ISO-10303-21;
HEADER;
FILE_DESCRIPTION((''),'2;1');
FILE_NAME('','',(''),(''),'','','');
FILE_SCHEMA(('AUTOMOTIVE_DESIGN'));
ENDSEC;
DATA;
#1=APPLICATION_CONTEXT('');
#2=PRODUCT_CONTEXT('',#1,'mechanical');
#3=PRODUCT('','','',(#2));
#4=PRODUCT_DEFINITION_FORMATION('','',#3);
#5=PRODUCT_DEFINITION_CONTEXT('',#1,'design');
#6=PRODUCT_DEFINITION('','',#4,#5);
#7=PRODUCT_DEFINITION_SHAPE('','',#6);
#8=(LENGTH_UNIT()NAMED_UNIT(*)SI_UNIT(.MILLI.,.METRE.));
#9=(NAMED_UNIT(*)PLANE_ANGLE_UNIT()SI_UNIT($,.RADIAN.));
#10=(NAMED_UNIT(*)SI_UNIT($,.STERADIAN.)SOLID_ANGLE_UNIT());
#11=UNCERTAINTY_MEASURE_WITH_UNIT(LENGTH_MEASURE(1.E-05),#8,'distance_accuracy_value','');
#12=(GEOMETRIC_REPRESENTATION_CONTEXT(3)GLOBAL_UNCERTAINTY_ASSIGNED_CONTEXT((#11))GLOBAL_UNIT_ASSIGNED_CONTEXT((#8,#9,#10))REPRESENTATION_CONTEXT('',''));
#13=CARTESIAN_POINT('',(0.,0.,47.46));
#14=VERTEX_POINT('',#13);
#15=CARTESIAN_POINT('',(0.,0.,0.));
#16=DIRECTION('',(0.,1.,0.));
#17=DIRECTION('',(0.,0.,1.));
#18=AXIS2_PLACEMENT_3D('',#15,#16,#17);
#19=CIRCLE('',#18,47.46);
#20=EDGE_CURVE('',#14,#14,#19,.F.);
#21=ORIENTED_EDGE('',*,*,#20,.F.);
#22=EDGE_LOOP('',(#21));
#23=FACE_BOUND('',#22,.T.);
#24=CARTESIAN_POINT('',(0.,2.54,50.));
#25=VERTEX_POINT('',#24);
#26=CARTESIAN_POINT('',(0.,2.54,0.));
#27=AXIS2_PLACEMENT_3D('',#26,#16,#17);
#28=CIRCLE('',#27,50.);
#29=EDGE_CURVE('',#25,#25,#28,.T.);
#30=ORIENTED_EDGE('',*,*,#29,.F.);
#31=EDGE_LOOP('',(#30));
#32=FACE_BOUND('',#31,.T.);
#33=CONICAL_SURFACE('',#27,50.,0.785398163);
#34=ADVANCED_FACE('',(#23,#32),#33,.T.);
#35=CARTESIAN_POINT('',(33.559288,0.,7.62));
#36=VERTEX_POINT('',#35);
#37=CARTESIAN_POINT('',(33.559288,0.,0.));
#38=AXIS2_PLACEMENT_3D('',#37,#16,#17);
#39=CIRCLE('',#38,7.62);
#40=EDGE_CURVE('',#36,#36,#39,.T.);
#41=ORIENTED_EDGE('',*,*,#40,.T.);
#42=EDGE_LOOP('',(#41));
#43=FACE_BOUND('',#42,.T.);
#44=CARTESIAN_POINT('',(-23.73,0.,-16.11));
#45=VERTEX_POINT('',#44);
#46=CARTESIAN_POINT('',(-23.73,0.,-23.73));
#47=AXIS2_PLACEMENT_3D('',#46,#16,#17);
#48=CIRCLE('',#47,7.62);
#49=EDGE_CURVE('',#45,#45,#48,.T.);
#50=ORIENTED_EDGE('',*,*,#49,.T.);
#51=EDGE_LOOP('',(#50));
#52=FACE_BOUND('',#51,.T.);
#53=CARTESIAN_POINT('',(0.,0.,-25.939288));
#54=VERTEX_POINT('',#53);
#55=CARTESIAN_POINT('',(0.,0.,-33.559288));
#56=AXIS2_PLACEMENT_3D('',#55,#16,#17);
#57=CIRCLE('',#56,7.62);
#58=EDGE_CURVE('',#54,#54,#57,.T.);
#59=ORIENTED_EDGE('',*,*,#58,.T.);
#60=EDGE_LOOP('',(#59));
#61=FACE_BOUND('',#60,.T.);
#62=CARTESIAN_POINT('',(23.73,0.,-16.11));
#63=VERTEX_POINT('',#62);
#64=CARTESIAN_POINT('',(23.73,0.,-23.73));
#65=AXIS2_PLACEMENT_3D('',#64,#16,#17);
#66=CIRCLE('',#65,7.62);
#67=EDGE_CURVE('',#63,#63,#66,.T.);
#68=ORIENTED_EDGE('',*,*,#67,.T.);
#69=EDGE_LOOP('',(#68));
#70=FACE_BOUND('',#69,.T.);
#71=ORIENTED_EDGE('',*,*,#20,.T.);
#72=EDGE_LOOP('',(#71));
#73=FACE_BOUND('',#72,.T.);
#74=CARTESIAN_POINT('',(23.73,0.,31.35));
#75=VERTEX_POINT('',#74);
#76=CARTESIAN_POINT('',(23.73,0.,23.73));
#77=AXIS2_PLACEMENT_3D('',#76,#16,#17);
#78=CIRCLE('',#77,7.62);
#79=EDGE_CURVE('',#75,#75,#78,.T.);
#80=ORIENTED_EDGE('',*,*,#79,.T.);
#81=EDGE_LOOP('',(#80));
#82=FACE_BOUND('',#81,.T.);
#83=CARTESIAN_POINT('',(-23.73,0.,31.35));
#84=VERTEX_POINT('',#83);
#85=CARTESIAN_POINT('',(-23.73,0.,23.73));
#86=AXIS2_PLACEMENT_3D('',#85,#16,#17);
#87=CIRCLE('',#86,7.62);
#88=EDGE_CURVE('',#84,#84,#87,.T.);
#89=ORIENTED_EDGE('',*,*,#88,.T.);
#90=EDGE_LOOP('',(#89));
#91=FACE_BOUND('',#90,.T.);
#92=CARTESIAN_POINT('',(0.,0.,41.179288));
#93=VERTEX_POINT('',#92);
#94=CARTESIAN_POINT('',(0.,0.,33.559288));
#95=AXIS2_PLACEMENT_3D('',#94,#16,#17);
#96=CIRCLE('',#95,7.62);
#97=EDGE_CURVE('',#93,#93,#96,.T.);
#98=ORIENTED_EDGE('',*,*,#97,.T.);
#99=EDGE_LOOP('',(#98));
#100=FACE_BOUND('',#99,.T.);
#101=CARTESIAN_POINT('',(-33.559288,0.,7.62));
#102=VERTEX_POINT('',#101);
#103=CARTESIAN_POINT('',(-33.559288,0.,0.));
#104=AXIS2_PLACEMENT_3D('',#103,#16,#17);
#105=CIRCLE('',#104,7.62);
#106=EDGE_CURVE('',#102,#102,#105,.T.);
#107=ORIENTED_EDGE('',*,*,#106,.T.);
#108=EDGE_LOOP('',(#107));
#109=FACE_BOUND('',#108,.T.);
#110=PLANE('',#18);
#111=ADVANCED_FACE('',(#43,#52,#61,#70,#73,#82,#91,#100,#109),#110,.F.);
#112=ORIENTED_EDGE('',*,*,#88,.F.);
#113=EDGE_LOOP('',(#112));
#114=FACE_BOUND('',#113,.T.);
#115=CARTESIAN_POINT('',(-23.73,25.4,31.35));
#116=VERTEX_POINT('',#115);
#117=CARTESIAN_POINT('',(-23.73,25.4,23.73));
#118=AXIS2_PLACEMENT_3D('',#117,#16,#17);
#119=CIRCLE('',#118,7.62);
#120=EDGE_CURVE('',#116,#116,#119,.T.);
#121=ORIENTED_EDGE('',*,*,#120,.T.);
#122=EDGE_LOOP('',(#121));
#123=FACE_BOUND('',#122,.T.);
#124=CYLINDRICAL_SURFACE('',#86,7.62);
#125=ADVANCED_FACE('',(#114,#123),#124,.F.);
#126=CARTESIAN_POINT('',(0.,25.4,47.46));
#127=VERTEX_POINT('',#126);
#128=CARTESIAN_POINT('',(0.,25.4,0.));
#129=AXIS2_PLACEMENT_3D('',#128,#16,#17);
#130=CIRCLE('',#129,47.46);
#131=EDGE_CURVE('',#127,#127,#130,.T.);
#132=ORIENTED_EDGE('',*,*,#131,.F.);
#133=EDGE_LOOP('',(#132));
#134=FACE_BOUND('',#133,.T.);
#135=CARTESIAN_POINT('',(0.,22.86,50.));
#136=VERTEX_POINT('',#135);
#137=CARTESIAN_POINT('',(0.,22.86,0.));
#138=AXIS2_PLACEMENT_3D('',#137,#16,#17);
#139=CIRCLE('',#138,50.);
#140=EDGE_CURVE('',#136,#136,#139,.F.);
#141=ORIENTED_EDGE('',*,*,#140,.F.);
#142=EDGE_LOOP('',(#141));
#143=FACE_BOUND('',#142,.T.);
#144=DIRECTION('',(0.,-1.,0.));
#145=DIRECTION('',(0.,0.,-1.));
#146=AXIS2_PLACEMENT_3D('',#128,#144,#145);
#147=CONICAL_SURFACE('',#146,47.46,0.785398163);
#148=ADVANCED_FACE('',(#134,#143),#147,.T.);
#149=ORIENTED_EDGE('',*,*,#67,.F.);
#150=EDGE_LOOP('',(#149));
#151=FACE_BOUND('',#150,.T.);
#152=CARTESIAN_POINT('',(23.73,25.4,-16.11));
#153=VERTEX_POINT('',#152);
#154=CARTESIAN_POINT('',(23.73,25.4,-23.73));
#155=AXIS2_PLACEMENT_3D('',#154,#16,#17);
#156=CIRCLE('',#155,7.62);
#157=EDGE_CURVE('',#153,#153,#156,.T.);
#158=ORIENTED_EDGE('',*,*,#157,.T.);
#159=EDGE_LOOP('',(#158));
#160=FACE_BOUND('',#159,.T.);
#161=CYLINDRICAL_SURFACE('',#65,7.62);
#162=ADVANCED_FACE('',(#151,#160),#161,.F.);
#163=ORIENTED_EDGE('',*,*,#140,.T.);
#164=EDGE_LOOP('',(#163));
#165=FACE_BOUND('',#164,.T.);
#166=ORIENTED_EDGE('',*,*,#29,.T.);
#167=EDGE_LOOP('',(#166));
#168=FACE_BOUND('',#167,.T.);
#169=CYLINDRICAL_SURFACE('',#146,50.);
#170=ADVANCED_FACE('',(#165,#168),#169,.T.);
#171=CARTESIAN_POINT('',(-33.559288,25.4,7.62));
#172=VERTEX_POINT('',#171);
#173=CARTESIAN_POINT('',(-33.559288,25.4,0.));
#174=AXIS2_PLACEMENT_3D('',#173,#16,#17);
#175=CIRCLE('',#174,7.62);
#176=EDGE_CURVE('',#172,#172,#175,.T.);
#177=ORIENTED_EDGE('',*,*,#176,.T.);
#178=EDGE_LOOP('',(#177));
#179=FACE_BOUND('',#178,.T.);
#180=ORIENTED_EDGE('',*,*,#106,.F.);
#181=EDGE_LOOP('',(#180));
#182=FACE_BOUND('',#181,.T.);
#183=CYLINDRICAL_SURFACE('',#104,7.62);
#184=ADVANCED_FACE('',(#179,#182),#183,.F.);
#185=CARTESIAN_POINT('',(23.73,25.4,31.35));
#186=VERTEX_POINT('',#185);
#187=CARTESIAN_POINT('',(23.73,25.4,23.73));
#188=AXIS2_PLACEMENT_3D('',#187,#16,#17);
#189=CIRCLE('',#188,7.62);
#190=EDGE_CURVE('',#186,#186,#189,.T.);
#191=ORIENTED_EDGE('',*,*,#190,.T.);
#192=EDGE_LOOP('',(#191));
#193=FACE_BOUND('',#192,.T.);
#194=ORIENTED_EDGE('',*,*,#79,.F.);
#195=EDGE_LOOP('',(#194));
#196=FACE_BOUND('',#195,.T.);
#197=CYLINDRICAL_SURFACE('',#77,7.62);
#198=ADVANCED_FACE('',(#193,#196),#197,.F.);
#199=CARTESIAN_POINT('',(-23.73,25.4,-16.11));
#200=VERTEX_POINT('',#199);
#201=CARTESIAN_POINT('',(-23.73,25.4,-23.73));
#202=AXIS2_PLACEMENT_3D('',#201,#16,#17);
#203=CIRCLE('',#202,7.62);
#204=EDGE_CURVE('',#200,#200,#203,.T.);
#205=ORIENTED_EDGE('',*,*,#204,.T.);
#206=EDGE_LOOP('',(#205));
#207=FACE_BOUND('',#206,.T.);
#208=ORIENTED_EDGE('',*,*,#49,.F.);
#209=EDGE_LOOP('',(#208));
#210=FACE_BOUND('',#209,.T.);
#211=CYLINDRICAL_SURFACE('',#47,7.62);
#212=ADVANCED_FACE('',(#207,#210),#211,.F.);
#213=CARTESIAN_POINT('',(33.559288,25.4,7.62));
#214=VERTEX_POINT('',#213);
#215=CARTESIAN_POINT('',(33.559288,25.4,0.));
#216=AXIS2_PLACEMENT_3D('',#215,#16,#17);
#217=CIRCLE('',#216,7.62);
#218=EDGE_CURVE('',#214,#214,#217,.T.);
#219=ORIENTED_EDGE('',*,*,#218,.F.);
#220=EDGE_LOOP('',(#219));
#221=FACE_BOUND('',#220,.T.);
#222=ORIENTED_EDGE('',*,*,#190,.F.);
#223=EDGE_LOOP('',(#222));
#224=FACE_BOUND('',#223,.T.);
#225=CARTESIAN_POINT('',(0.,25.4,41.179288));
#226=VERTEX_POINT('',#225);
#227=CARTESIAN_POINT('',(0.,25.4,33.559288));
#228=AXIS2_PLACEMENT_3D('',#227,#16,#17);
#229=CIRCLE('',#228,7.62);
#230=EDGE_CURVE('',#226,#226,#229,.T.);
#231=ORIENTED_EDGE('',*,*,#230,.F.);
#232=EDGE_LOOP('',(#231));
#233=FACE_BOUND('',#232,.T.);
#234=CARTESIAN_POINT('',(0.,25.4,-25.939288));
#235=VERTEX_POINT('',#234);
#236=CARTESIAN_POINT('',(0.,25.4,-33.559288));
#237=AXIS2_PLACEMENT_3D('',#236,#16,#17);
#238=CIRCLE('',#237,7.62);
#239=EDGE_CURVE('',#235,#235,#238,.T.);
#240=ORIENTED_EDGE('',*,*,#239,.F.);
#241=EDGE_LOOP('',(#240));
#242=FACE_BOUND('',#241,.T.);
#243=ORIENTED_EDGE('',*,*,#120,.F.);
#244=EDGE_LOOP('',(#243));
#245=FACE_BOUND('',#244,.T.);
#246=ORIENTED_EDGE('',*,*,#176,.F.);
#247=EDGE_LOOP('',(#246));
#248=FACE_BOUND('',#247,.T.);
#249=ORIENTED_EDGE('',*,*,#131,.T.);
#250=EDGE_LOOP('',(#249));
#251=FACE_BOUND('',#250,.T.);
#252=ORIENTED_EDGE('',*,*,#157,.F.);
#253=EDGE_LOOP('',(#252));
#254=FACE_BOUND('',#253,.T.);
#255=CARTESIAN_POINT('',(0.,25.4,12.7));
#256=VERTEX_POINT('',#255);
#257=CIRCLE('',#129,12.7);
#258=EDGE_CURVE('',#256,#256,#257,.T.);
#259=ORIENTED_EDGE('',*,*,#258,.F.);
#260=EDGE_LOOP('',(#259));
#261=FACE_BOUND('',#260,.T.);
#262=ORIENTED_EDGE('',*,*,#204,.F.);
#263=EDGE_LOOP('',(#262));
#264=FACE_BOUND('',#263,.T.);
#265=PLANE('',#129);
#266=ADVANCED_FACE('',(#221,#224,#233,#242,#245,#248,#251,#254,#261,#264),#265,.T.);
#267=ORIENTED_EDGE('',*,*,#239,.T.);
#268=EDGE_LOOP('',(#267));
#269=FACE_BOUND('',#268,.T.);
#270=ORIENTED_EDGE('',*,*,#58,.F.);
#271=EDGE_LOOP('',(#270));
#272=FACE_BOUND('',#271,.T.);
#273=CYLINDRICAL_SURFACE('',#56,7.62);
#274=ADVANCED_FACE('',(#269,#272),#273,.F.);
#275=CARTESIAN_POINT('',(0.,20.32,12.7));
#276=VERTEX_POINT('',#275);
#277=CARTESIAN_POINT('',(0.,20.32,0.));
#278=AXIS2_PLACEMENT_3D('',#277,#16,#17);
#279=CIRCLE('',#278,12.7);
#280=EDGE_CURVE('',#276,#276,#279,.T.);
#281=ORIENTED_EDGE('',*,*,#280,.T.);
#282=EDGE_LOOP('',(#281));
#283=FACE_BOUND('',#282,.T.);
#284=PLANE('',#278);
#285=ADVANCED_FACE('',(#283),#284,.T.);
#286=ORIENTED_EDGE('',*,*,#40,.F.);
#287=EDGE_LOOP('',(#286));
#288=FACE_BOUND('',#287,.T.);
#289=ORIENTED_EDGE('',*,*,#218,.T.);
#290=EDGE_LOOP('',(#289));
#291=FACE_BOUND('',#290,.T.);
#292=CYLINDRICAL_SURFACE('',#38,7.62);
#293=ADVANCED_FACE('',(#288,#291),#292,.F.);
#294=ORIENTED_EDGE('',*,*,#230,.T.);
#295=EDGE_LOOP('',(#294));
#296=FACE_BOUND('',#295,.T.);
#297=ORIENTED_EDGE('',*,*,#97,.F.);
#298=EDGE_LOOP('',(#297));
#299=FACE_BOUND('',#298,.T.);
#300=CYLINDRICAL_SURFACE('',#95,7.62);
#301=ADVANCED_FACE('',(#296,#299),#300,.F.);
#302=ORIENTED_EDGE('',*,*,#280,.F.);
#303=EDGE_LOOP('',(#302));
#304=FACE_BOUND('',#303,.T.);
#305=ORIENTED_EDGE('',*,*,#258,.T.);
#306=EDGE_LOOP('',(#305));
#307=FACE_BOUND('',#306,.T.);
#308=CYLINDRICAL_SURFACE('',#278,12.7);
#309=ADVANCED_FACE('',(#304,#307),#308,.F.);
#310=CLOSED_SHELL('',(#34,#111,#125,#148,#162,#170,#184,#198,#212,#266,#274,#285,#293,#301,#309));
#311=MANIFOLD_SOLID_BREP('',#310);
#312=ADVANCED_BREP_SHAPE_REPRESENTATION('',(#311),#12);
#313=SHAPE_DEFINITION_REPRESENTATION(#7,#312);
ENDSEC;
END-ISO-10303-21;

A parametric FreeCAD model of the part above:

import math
import FreeCAD as App
import Part
import Sketcher

V = App.Vector
Q = App.Units.Quantity


def edges_at(feature, points):
    """Names of the edges that pass closest to the given points."""
    edges = feature.Shape.Edges
    near = lambda p: min(range(len(edges)), key=lambda i: edges[i].distToShape(Part.Vertex(*p))[0])
    return sorted({f"Edge{near(p) + 1}" for p in points})

doc = App.newDocument("Part")
body = doc.addObject("PartDesign::Body", "Body")

# Sketch on XZ plane
sketch1 = doc.addObject("Sketcher::SketchObject", "Sketch")
body.addObject(sketch1)
sketch1.AttachmentSupport = (doc.XZ_Plane, [""])
sketch1.MapMode = "FlatFace"
sketch1.addGeometry(Part.Circle(V(0, 0, 0), V(0, 0, 1), 50), False)
sketch1.addConstraint(Sketcher.Constraint("Coincident", 0, 3, -1, 1))
sketch1.addConstraint(Sketcher.Constraint("Diameter", 0, 100.0))
pad1 = doc.addObject("PartDesign::Pad", "Pad")
body.addObject(pad1)
pad1.Profile = sketch1
pad1.Length = Q("1 in")
pad1.Reversed = True

# Sketch on XZ plane
sketch2 = doc.addObject("Sketcher::SketchObject", "Sketch001")
body.addObject(sketch2)
sketch2.AttachmentSupport = (doc.XZ_Plane, [""])
sketch2.MapMode = "FlatFace"
sketch2.AttachmentOffset = App.Placement(V(0, 0, -1 * 25.4), App.Rotation())
sketch2.addGeometry(Part.Circle(V(0, 0, 0), V(0, 0, 1), 12.7), False)
sketch2.addConstraint(Sketcher.Constraint("Coincident", 0, 3, -1, 1))
sketch2.addConstraint(Sketcher.Constraint("Diameter", 0, Q("1 in")))
pocket1 = doc.addObject("PartDesign::Pocket", "Pocket")
body.addObject(pocket1)
pocket1.Profile = sketch2
pocket1.Length = Q("0.2 in")
pocket1.Reversed = True
doc.recompute()

chamfer = doc.addObject("PartDesign::Chamfer", "Chamfer")
body.addObject(chamfer)
chamfer.Base = (pocket1, edges_at(pocket1, [(0, 0, -50), (0, 25.4, -50)]))
chamfer.Size = Q("0.1 in")

# Sketch on XZ plane
sketch3 = doc.addObject("Sketcher::SketchObject", "Sketch002")
body.addObject(sketch3)
sketch3.AttachmentSupport = (doc.XZ_Plane, [""])
sketch3.MapMode = "FlatFace"
sketch3.AttachmentOffset = App.Placement(V(0, 0, -1 * 25.4), App.Rotation())
sketch3.addGeometry(Part.ArcOfCircle(Part.Circle(V(33.559288, 0, 0), V(0, 0, 1), 7.62), math.radians(90), math.radians(180)), False)
sketch3.addGeometry(Part.ArcOfCircle(Part.Circle(V(33.559288, 0, 0), V(0, 0, 1), 7.62), math.radians(0), math.radians(90)), False)
sketch3.addGeometry(Part.ArcOfCircle(Part.Circle(V(33.559288, 0, 0), V(0, 0, 1), 7.62), math.radians(-90), math.radians(0)), False)
sketch3.addGeometry(Part.ArcOfCircle(Part.Circle(V(33.559288, 0, 0), V(0, 0, 1), 7.62), math.radians(180), math.radians(270)), False)
sketch3.addGeometry(Part.ArcOfCircle(Part.Circle(V(23.73, 23.73, 0), V(0, 0, 1), 7.62), math.radians(45), math.radians(135)), False)
sketch3.addGeometry(Part.ArcOfCircle(Part.Circle(V(23.73, 23.73, 0), V(0, 0, 1), 7.62), math.radians(0), math.radians(45)), False)
sketch3.addGeometry(Part.ArcOfCircle(Part.Circle(V(23.73, 23.73, 0), V(0, 0, 1), 7.62), math.radians(-45), math.radians(0)), False)
sketch3.addGeometry(Part.ArcOfCircle(Part.Circle(V(23.73, 23.73, 0), V(0, 0, 1), 7.62), math.radians(-135), math.radians(-45)), False)
sketch3.addGeometry(Part.ArcOfCircle(Part.Circle(V(23.73, 23.73, 0), V(0, 0, 1), 7.62), math.radians(135), math.radians(225)), False)
sketch3.addGeometry(Part.ArcOfCircle(Part.Circle(V(0, 33.559288, 0), V(0, 0, 1), 7.62), math.radians(180), math.radians(270)), False)
sketch3.addGeometry(Part.ArcOfCircle(Part.Circle(V(0, 33.559288, 0), V(0, 0, 1), 7.62), math.radians(90), math.radians(180)), False)
sketch3.addGeometry(Part.ArcOfCircle(Part.Circle(V(0, 33.559288, 0), V(0, 0, 1), 7.62), math.radians(0), math.radians(90)), False)
sketch3.addGeometry(Part.ArcOfCircle(Part.Circle(V(0, 33.559288, 0), V(0, 0, 1), 7.62), math.radians(-90), math.radians(0)), False)
sketch3.addGeometry(Part.ArcOfCircle(Part.Circle(V(-23.73, 23.73, 0), V(0, 0, 1), 7.62), math.radians(-135), math.radians(-45)), False)
sketch3.addGeometry(Part.ArcOfCircle(Part.Circle(V(-23.73, 23.73, 0), V(0, 0, 1), 7.62), math.radians(135), math.radians(225)), False)
sketch3.addGeometry(Part.ArcOfCircle(Part.Circle(V(-23.73, 23.73, 0), V(0, 0, 1), 7.62), math.radians(45), math.radians(135)), False)
sketch3.addGeometry(Part.ArcOfCircle(Part.Circle(V(-23.73, 23.73, 0), V(0, 0, 1), 7.62), math.radians(0), math.radians(45)), False)
sketch3.addGeometry(Part.ArcOfCircle(Part.Circle(V(-23.73, 23.73, 0), V(0, 0, 1), 7.62), math.radians(-45), math.radians(0)), False)
sketch3.addGeometry(Part.ArcOfCircle(Part.Circle(V(-33.559288, 0, 0), V(0, 0, 1), 7.62), math.radians(-90), math.radians(0)), False)
sketch3.addGeometry(Part.ArcOfCircle(Part.Circle(V(-33.559288, 0, 0), V(0, 0, 1), 7.62), math.radians(180), math.radians(270)), False)
sketch3.addGeometry(Part.ArcOfCircle(Part.Circle(V(-33.559288, 0, 0), V(0, 0, 1), 7.62), math.radians(90), math.radians(180)), False)
sketch3.addGeometry(Part.ArcOfCircle(Part.Circle(V(-33.559288, 0, 0), V(0, 0, 1), 7.62), math.radians(0), math.radians(90)), False)
sketch3.addGeometry(Part.ArcOfCircle(Part.Circle(V(-23.73, -23.73, 0), V(0, 0, 1), 7.62), math.radians(-45), math.radians(0)), False)
sketch3.addGeometry(Part.ArcOfCircle(Part.Circle(V(-23.73, -23.73, 0), V(0, 0, 1), 7.62), math.radians(-135), math.radians(-45)), False)
sketch3.addGeometry(Part.ArcOfCircle(Part.Circle(V(-23.73, -23.73, 0), V(0, 0, 1), 7.62), math.radians(135), math.radians(225)), False)
sketch3.addGeometry(Part.ArcOfCircle(Part.Circle(V(-23.73, -23.73, 0), V(0, 0, 1), 7.62), math.radians(45), math.radians(135)), False)
sketch3.addGeometry(Part.ArcOfCircle(Part.Circle(V(-23.73, -23.73, 0), V(0, 0, 1), 7.62), math.radians(0), math.radians(45)), False)
sketch3.addGeometry(Part.Circle(V(23.73, -23.73, 0), V(0, 0, 1), 7.62), False)
sketch3.addGeometry(Part.Circle(V(0, -33.559288, 0), V(0, 0, 1), 7.62), False)
sketch3.addConstraint(Sketcher.Constraint("Tangent", 0, 1, 1, 2))
sketch3.addConstraint(Sketcher.Constraint("Tangent", 1, 1, 2, 2))
sketch3.addConstraint(Sketcher.Constraint("Tangent", 2, 1, 3, 2))
sketch3.addConstraint(Sketcher.Constraint("Tangent", 3, 1, 0, 2))
sketch3.addConstraint(Sketcher.Constraint("Tangent", 4, 1, 5, 2))
sketch3.addConstraint(Sketcher.Constraint("Tangent", 5, 1, 6, 2))
sketch3.addConstraint(Sketcher.Constraint("Tangent", 6, 1, 7, 2))
sketch3.addConstraint(Sketcher.Constraint("Tangent", 7, 1, 8, 2))
sketch3.addConstraint(Sketcher.Constraint("Tangent", 8, 1, 4, 2))
sketch3.addConstraint(Sketcher.Constraint("Tangent", 9, 1, 10, 2))
sketch3.addConstraint(Sketcher.Constraint("Tangent", 10, 1, 11, 2))
sketch3.addConstraint(Sketcher.Constraint("Tangent", 11, 1, 12, 2))
sketch3.addConstraint(Sketcher.Constraint("Tangent", 12, 1, 9, 2))
sketch3.addConstraint(Sketcher.Constraint("Tangent", 13, 1, 14, 2))
sketch3.addConstraint(Sketcher.Constraint("Tangent", 14, 1, 15, 2))
sketch3.addConstraint(Sketcher.Constraint("Tangent", 15, 1, 16, 2))
sketch3.addConstraint(Sketcher.Constraint("Tangent", 16, 1, 17, 2))
sketch3.addConstraint(Sketcher.Constraint("Tangent", 17, 1, 13, 2))
sketch3.addConstraint(Sketcher.Constraint("Tangent", 18, 1, 19, 2))
sketch3.addConstraint(Sketcher.Constraint("Tangent", 19, 1, 20, 2))
sketch3.addConstraint(Sketcher.Constraint("Tangent", 20, 1, 21, 2))
sketch3.addConstraint(Sketcher.Constraint("Tangent", 21, 1, 18, 2))
sketch3.addConstraint(Sketcher.Constraint("Tangent", 22, 1, 23, 2))
sketch3.addConstraint(Sketcher.Constraint("Tangent", 23, 1, 24, 2))
sketch3.addConstraint(Sketcher.Constraint("Tangent", 24, 1, 25, 2))
sketch3.addConstraint(Sketcher.Constraint("Tangent", 25, 1, 26, 2))
sketch3.addConstraint(Sketcher.Constraint("Tangent", 26, 1, 22, 2))
sketch3.addConstraint(Sketcher.Constraint("Coincident", 6, 3, 4, 3))
sketch3.addConstraint(Sketcher.Constraint("Coincident", 15, 3, 13, 3))
sketch3.addConstraint(Sketcher.Constraint("Coincident", 24, 3, 22, 3))
sketch3.addConstraint(Sketcher.Constraint("Equal", 0, 1))
sketch3.addConstraint(Sketcher.Constraint("Equal", 3, 4))
sketch3.addConstraint(Sketcher.Constraint("Equal", 8, 9))
sketch3.addConstraint(Sketcher.Constraint("Equal", 9, 10))
sketch3.addConstraint(Sketcher.Constraint("Equal", 12, 13))
sketch3.addConstraint(Sketcher.Constraint("Equal", 17, 18))
sketch3.addConstraint(Sketcher.Constraint("Equal", 18, 19))
sketch3.addConstraint(Sketcher.Constraint("Equal", 21, 22))
sketch3.addConstraint(Sketcher.Constraint("Equal", 26, 27))
sketch3.addConstraint(Sketcher.Constraint("Equal", 27, 28))
sketch3.addConstraint(Sketcher.Constraint("Symmetric", 0, 3, 18, 3, -1, 1))
sketch3.addConstraint(Sketcher.Constraint("Symmetric", 4, 3, 22, 3, -1, 1))
sketch3.addConstraint(Sketcher.Constraint("Symmetric", 13, 3, 27, 3, -1, 1))
sketch3.addConstraint(Sketcher.Constraint("Symmetric", 9, 3, 28, 3, -1, 1))
sketch3.addConstraint(Sketcher.Constraint("Symmetric", 4, 3, 13, 3, -2))
sketch3.addConstraint(Sketcher.Constraint("Symmetric", 9, 1, 11, 1, -2))
sketch3.addConstraint(Sketcher.Constraint("Symmetric", 2, 1, 18, 1, -2))
sketch3.addConstraint(Sketcher.Constraint("PointOnObject", 1, 1, -1))
sketch3.addConstraint(Sketcher.Constraint("PointOnObject", 3, 1, -1))
sketch3.addConstraint(Sketcher.Constraint("PointOnObject", 10, 1, -2))
sketch3.addConstraint(Sketcher.Constraint("PointOnObject", 12, 1, -2))
sketch3.addConstraint(Sketcher.Constraint("PointOnObject", 19, 1, -1))
sketch3.addConstraint(Sketcher.Constraint("PointOnObject", 21, 1, -1))
sketch3.addConstraint(Sketcher.Constraint("Horizontal", 17, 3, 5, 1))
sketch3.addConstraint(Sketcher.Constraint("Horizontal", 6, 1, 7, 1))
sketch3.addConstraint(Sketcher.Constraint("Horizontal", 4, 1, 8, 1))
sketch3.addConstraint(Sketcher.Constraint("Horizontal", 12, 3, 9, 1))
sketch3.addConstraint(Sketcher.Constraint("Horizontal", 7, 1, 13, 1))
sketch3.addConstraint(Sketcher.Constraint("Horizontal", 8, 1, 14, 1))
sketch3.addConstraint(Sketcher.Constraint("Horizontal", 14, 1, 15, 1))
sketch3.addConstraint(Sketcher.Constraint("Horizontal", 5, 1, 16, 1))
sketch3.addConstraint(Sketcher.Constraint("Horizontal", 13, 1, 17, 1))
sketch3.addConstraint(Sketcher.Constraint("Horizontal", 22, 1, 23, 1))
sketch3.addConstraint(Sketcher.Constraint("Horizontal", 24, 1, 25, 1))
sketch3.addConstraint(Sketcher.Constraint("Horizontal", 27, 3, 26, 1))
sketch3.addConstraint(Sketcher.Constraint("Vertical", 3, 3, 0, 1))
sketch3.addConstraint(Sketcher.Constraint("Vertical", 0, 1, 2, 1))
sketch3.addConstraint(Sketcher.Constraint("Vertical", 4, 1, 6, 1))
sketch3.addConstraint(Sketcher.Constraint("Vertical", 18, 1, 20, 1))
sketch3.addConstraint(Sketcher.Constraint("Vertical", 17, 1, 22, 1))
sketch3.addConstraint(Sketcher.Constraint("Vertical", 23, 1, 24, 1))
sketch3.addConstraint(Sketcher.Constraint("Diameter", 27, Q("0.6 in")))
sketch3.addConstraint(Sketcher.Constraint("DistanceX", -1, 1, 4, 3, 23.73))
sketch3.addConstraint(Sketcher.Constraint("DistanceY", -1, 1, 4, 3, 23.73))
sketch3.addConstraint(Sketcher.Constraint("DistanceX", -1, 1, 0, 3, 33.559288))
sketch3.addConstraint(Sketcher.Constraint("DistanceY", -1, 1, 9, 3, 33.559288))
sketch3.addConstraint(Sketcher.Constraint("DistanceX", -1, 1, 4, 1, 29.118154))
pocket2 = doc.addObject("PartDesign::Pocket", "Pocket001")
body.addObject(pocket2)
pocket2.Profile = sketch3
pocket2.Type = "ThroughAll"
pocket2.Reversed = True

doc.recompute()
